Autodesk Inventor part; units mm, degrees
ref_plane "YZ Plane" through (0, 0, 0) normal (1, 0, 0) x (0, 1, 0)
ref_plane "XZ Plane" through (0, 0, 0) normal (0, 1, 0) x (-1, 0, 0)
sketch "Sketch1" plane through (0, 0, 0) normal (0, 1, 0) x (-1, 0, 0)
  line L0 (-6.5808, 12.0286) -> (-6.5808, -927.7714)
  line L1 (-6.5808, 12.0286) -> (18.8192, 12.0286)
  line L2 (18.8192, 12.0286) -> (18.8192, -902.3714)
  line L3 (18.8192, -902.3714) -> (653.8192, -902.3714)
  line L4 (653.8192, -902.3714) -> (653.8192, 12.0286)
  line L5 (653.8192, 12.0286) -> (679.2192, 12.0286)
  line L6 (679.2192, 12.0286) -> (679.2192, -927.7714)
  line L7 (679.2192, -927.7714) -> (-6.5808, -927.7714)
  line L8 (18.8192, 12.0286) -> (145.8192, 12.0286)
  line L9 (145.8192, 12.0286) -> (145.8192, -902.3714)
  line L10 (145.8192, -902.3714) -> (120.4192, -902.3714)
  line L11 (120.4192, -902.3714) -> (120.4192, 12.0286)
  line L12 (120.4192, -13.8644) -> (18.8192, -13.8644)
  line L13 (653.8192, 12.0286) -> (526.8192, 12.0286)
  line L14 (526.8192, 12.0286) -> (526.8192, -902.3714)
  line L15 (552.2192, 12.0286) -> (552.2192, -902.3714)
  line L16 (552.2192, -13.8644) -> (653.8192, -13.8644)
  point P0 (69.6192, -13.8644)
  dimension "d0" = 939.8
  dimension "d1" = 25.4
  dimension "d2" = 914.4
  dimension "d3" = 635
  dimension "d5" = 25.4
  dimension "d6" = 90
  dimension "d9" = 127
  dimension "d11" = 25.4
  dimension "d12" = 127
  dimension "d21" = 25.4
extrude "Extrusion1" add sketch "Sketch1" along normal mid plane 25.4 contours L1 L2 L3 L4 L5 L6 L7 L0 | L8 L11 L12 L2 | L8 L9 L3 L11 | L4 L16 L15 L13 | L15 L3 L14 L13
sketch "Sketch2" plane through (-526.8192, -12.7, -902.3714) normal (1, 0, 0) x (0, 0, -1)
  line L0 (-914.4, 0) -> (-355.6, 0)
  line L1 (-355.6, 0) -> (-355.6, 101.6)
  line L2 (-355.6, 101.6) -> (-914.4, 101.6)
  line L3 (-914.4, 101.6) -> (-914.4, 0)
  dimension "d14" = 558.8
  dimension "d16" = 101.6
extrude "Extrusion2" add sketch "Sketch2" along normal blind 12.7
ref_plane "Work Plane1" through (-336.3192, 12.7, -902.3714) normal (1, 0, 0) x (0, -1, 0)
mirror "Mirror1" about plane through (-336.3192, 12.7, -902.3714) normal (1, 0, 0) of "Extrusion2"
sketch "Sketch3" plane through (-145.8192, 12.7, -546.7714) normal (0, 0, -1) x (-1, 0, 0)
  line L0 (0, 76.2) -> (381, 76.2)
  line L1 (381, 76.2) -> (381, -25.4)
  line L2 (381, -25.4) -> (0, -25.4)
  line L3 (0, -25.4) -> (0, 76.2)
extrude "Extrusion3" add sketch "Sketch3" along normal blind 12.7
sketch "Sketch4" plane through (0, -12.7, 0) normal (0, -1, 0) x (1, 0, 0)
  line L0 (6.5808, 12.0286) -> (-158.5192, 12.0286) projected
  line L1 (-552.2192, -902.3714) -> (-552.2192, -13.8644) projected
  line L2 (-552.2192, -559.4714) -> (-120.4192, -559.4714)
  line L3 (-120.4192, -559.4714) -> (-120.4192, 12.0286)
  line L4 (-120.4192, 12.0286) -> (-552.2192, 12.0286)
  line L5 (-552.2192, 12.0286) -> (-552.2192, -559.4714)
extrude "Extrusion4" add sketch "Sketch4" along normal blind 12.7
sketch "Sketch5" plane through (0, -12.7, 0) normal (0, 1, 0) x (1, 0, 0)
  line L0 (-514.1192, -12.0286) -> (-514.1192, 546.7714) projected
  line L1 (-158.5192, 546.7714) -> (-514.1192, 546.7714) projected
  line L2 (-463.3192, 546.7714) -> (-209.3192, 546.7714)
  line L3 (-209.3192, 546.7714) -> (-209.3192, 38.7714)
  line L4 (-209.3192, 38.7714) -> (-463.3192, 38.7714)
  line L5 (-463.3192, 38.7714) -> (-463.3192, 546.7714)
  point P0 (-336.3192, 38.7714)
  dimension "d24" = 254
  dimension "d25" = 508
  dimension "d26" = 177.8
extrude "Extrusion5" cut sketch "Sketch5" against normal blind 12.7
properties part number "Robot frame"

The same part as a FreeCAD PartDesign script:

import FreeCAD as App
import Part
import Sketcher
Q = App.Units.Quantity


def add_polygon(sketch, points):
    """Adds a closed chain of lines whose ends are joined by coincident constraints."""
    first, n = sketch.GeometryCount, len(points)
    for a, b in zip(points, points[1:] + points[:1]):
        sketch.addGeometry(Part.LineSegment(App.Vector(*a, 0), App.Vector(*b, 0)), False)
    for i in range(n):
        sketch.addConstraint(Sketcher.Constraint("Coincident", first + i, 2, first + (i + 1) % n, 1))

doc = App.newDocument("Part")
params = doc.addObject("Spreadsheet::Sheet", "Params")
for row, (alias, value) in enumerate([
    ("sketch1_height", "37 in"),
    ("sketch1_height2", "36 in"),
    ("sketch1_width", "27 in"),
    ("pad1_length", "1 in"),
    ("sketch2_width", "4 in"),
    ("sketch2_height", "22 in"),
    ("pad2_length", "0.5 in"),
    ("sketch3_width", "15 in"),
    ("sketch3_height", "4 in"),
    ("pad3_length", "0.5 in"),
    ("sketch4_width", "17 in"),
    ("sketch4_height", "22.5 in"),
    ("pad4_length", "0.5 in"),
    ("sketch5_width", "10 in"),
    ("sketch5_height", "20 in"),
    ("pocket1_length", "0.5 in"),
], start=1):
    params.set(f"A{row}", alias)
    params.set(f"B{row}", "=" + value)
    params.setAlias(f"B{row}", alias)

body = doc.addObject("PartDesign::Body", "Body")

sketch1 = doc.addObject("Sketcher::SketchObject", "Sketch")
body.addObject(sketch1)
sketch1.AttachmentSupport = (doc.XZ_Plane, [""])
sketch1.MapMode = "FlatFace"
add_polygon(sketch1, [(6.5808, 12.0286), (6.5808, -927.7714), (-679.2192, -927.7714), (-679.2192, 12.0286), (-526.8192, 12.0286), (-526.8192, -902.3714), (-145.8192, -902.3714), (-145.8192, 12.0286)])
add_polygon(sketch1, [(-18.8192, -902.3714), (-18.8192, -13.8644), (-120.4192, -13.8644), (-120.4192, -902.3714)])
add_polygon(sketch1, [(-653.8192, -902.3714), (-552.2192, -902.3714), (-552.2192, -13.8644), (-653.8192, -13.8644)])
sketch1.addConstraint([
    Sketcher.Constraint("Vertical", 0),
    Sketcher.Constraint("Horizontal", 1),
    Sketcher.Constraint("Vertical", 2),
    Sketcher.Constraint("Horizontal", 3),
    Sketcher.Constraint("Vertical", 4),
    Sketcher.Constraint("Horizontal", 5),
    Sketcher.Constraint("Vertical", 6),
    Sketcher.Constraint("Horizontal", 7),
    Sketcher.Constraint("Vertical", 8),
    Sketcher.Constraint("Horizontal", 9),
    Sketcher.Constraint("Vertical", 10),
    Sketcher.Constraint("Horizontal", 11),
    Sketcher.Constraint("Horizontal", 12),
    Sketcher.Constraint("Vertical", 13),
    Sketcher.Constraint("Horizontal", 14),
    Sketcher.Constraint("Vertical", 15),
    Sketcher.Constraint("Horizontal", 3, 2, 6, 2),
    Sketcher.Constraint("Horizontal", 5, 2, 10, 2),
    Sketcher.Constraint("Horizontal", 11, 2, 12, 2),
    Sketcher.Constraint("Horizontal", 9, 2, 13, 2),
    Sketcher.Constraint("Equal", 3, 7),
    Sketcher.Constraint("Equal", 11, 12),
    Sketcher.Constraint("DistanceY", 0, 2, 0, 1, Q("37 in")),
    Sketcher.Constraint("DistanceY", 4, 2, 4, 1, Q("36 in")),
    Sketcher.Constraint("DistanceX", 8, 2, 7, 2, Q("1 in")),
    Sketcher.Constraint("DistanceX", 6, 2, 8, 2, Q("5 in")),
    Sketcher.Constraint("DistanceX", 6, 2, 9, 2, Q("1 in")),
    Sketcher.Constraint("DistanceX", 12, 2, 4, 2, Q("1 in")),
    Sketcher.Constraint("DistanceX", 1, 2, 1, 1, Q("27 in")),
    Sketcher.Constraint("DistanceY", 8, 1, 8, 2, Q("34.9806 in")),
    Sketcher.Constraint("DistanceX", -1, 1, 0, 2, 6.5808),
    Sketcher.Constraint("DistanceY", 0, 2, -1, 1, 927.7714),
])
sketch1.setExpression("Constraints[38]", "Params.sketch1_height")
sketch1.setExpression("Constraints[39]", "Params.sketch1_height2")
sketch1.setExpression("Constraints[44]", "Params.sketch1_width")
pad1 = doc.addObject("PartDesign::Pad", "Pad")
body.addObject(pad1)
pad1.Profile = sketch1
pad1.setExpression("Length", "Params.pad1_length")
pad1.Midplane = True

sketch2 = doc.addObject("Sketcher::SketchObject", "Sketch001")
body.addObject(sketch2)
sketch2.AttachmentSupport = (doc.YZ_Plane, [""])
sketch2.MapMode = "FlatFace"
sketch2.AttachmentOffset = App.Placement(App.Vector(0, 0, -526.8192), App.Rotation())
add_polygon(sketch2, [(88.9, 12.0286), (-12.7, 12.0286), (-12.7, -546.7714), (88.9, -546.7714)])
sketch2.addConstraint([
    Sketcher.Constraint("Horizontal", 0),
    Sketcher.Constraint("Vertical", 1),
    Sketcher.Constraint("Horizontal", 2),
    Sketcher.Constraint("Vertical", 3),
    Sketcher.Constraint("DistanceX", 0, 2, 0, 1, Q("4 in")),
    Sketcher.Constraint("DistanceY", 1, 2, 1, 1, Q("22 in")),
    Sketcher.Constraint("DistanceX", 0, 2, -1, 1, Q("0.5 in")),
    Sketcher.Constraint("DistanceY", -1, 1, 0, 2, 12.0286),
])
sketch2.setExpression("Constraints[8]", "Params.sketch2_width")
sketch2.setExpression("Constraints[9]", "Params.sketch2_height")
pad2 = doc.addObject("PartDesign::Pad", "Pad001")
body.addObject(pad2)
pad2.Profile = sketch2
pad2.setExpression("Length", "Params.pad2_length")
doc.recompute()

datumplane = doc.addObject("PartDesign::Plane", "DatumPlane")
body.addObject(datumplane)
datumplane.AttachmentSupport = (doc.YZ_Plane, [""])
datumplane.MapMode = "FlatFace"
datumplane.AttachmentOffset = App.Placement(App.Vector(0, 0, -336.3192), App.Rotation())
mirrored = doc.addObject("PartDesign::Mirrored", "Mirrored")
body.addObject(mirrored)
mirrored.Originals = [pad2]
mirrored.MirrorPlane = (datumplane, [""])
body.Tip = mirrored

sketch3 = doc.addObject("Sketcher::SketchObject", "Sketch002")
body.addObject(sketch3)
sketch3.AttachmentSupport = (doc.XY_Plane, [""])
sketch3.MapMode = "FlatFace"
sketch3.AttachmentOffset = App.Placement(App.Vector(0, 0, -546.7714), App.Rotation())
add_polygon(sketch3, [(-526.8192, 88.9), (-145.8192, 88.9), (-145.8192, -12.7), (-526.8192, -12.7)])
sketch3.addConstraint([
    Sketcher.Constraint("Horizontal", 0),
    Sketcher.Constraint("Vertical", 1),
    Sketcher.Constraint("Horizontal", 2),
    Sketcher.Constraint("Vertical", 3),
    Sketcher.Constraint("DistanceX", 0, 1, 0, 2, Q("15 in")),
    Sketcher.Constraint("DistanceY", 1, 2, 1, 1, Q("4 in")),
    Sketcher.Constraint("DistanceY", -1, 1, 0, 2, Q("3.5 in")),
    Sketcher.Constraint("DistanceX", 0, 2, -1, 1, 145.8192),
])
sketch3.setExpression("Constraints[8]", "Params.sketch3_width")
sketch3.setExpression("Constraints[9]", "Params.sketch3_height")
pad3 = doc.addObject("PartDesign::Pad", "Pad002")
body.addObject(pad3)
pad3.Profile = sketch3
pad3.setExpression("Length", "Params.pad3_length")
pad3.Reversed = True

sketch4 = doc.addObject("Sketcher::SketchObject", "Sketch003")
body.addObject(sketch4)
sketch4.AttachmentSupport = (doc.XZ_Plane, [""])
sketch4.MapMode = "FlatFace"
sketch4.AttachmentOffset = App.Placement(App.Vector(0, 0, 0.5 * 25.4), App.Rotation())
add_polygon(sketch4, [(-120.4192, -559.4714), (-120.4192, 12.0286), (-552.2192, 12.0286), (-552.2192, -559.4714)])
sketch4.addConstraint([
    Sketcher.Constraint("Vertical", 0),
    Sketcher.Constraint("Horizontal", 1),
    Sketcher.Constraint("Vertical", 2),
    Sketcher.Constraint("Horizontal", 3),
    Sketcher.Constraint("DistanceX", 1, 2, 1, 1, Q("17 in")),
    Sketcher.Constraint("DistanceY", 0, 1, 0, 2, Q("22.5 in")),
    Sketcher.Constraint("DistanceX", 0, 2, -1, 1, 120.4192),
    Sketcher.Constraint("DistanceY", -1, 1, 0, 2, 12.0286),
])
sketch4.setExpression("Constraints[8]", "Params.sketch4_width")
sketch4.setExpression("Constraints[9]", "Params.sketch4_height")
pad4 = doc.addObject("PartDesign::Pad", "Pad003")
body.addObject(pad4)
pad4.Profile = sketch4
pad4.setExpression("Length", "Params.pad4_length")

sketch5 = doc.addObject("Sketcher::SketchObject", "Sketch004")
body.addObject(sketch5)
sketch5.AttachmentSupport = (doc.XZ_Plane, [""])
sketch5.MapMode = "FlatFace"
sketch5.AttachmentOffset = App.Placement(App.Vector(0, 0, 0.5 * 25.4), App.Rotation())
add_polygon(sketch5, [(-209.3192, -38.7714), (-209.3192, -546.7714), (-463.3192, -546.7714), (-463.3192, -38.7714)])
sketch5.addConstraint([
    Sketcher.Constraint("Vertical", 0),
    Sketcher.Constraint("Horizontal", 1),
    Sketcher.Constraint("Vertical", 2),
    Sketcher.Constraint("Horizontal", 3),
    Sketcher.Constraint("DistanceX", 1, 2, 1, 1, Q("10 in")),
    Sketcher.Constraint("DistanceY", 0, 2, 0, 1, Q("20 in")),
    Sketcher.Constraint("DistanceX", 0, 2, -1, 1, 209.3192),
    Sketcher.Constraint("DistanceY", 0, 2, -1, 1, 546.7714),
])
sketch5.setExpression("Constraints[8]", "Params.sketch5_width")
sketch5.setExpression("Constraints[9]", "Params.sketch5_height")
pocket1 = doc.addObject("PartDesign::Pocket", "Pocket")
body.addObject(pocket1)
pocket1.Profile = sketch5
pocket1.setExpression("Length", "Params.pocket1_length")
pocket1.Reversed = True

doc.recompute()
